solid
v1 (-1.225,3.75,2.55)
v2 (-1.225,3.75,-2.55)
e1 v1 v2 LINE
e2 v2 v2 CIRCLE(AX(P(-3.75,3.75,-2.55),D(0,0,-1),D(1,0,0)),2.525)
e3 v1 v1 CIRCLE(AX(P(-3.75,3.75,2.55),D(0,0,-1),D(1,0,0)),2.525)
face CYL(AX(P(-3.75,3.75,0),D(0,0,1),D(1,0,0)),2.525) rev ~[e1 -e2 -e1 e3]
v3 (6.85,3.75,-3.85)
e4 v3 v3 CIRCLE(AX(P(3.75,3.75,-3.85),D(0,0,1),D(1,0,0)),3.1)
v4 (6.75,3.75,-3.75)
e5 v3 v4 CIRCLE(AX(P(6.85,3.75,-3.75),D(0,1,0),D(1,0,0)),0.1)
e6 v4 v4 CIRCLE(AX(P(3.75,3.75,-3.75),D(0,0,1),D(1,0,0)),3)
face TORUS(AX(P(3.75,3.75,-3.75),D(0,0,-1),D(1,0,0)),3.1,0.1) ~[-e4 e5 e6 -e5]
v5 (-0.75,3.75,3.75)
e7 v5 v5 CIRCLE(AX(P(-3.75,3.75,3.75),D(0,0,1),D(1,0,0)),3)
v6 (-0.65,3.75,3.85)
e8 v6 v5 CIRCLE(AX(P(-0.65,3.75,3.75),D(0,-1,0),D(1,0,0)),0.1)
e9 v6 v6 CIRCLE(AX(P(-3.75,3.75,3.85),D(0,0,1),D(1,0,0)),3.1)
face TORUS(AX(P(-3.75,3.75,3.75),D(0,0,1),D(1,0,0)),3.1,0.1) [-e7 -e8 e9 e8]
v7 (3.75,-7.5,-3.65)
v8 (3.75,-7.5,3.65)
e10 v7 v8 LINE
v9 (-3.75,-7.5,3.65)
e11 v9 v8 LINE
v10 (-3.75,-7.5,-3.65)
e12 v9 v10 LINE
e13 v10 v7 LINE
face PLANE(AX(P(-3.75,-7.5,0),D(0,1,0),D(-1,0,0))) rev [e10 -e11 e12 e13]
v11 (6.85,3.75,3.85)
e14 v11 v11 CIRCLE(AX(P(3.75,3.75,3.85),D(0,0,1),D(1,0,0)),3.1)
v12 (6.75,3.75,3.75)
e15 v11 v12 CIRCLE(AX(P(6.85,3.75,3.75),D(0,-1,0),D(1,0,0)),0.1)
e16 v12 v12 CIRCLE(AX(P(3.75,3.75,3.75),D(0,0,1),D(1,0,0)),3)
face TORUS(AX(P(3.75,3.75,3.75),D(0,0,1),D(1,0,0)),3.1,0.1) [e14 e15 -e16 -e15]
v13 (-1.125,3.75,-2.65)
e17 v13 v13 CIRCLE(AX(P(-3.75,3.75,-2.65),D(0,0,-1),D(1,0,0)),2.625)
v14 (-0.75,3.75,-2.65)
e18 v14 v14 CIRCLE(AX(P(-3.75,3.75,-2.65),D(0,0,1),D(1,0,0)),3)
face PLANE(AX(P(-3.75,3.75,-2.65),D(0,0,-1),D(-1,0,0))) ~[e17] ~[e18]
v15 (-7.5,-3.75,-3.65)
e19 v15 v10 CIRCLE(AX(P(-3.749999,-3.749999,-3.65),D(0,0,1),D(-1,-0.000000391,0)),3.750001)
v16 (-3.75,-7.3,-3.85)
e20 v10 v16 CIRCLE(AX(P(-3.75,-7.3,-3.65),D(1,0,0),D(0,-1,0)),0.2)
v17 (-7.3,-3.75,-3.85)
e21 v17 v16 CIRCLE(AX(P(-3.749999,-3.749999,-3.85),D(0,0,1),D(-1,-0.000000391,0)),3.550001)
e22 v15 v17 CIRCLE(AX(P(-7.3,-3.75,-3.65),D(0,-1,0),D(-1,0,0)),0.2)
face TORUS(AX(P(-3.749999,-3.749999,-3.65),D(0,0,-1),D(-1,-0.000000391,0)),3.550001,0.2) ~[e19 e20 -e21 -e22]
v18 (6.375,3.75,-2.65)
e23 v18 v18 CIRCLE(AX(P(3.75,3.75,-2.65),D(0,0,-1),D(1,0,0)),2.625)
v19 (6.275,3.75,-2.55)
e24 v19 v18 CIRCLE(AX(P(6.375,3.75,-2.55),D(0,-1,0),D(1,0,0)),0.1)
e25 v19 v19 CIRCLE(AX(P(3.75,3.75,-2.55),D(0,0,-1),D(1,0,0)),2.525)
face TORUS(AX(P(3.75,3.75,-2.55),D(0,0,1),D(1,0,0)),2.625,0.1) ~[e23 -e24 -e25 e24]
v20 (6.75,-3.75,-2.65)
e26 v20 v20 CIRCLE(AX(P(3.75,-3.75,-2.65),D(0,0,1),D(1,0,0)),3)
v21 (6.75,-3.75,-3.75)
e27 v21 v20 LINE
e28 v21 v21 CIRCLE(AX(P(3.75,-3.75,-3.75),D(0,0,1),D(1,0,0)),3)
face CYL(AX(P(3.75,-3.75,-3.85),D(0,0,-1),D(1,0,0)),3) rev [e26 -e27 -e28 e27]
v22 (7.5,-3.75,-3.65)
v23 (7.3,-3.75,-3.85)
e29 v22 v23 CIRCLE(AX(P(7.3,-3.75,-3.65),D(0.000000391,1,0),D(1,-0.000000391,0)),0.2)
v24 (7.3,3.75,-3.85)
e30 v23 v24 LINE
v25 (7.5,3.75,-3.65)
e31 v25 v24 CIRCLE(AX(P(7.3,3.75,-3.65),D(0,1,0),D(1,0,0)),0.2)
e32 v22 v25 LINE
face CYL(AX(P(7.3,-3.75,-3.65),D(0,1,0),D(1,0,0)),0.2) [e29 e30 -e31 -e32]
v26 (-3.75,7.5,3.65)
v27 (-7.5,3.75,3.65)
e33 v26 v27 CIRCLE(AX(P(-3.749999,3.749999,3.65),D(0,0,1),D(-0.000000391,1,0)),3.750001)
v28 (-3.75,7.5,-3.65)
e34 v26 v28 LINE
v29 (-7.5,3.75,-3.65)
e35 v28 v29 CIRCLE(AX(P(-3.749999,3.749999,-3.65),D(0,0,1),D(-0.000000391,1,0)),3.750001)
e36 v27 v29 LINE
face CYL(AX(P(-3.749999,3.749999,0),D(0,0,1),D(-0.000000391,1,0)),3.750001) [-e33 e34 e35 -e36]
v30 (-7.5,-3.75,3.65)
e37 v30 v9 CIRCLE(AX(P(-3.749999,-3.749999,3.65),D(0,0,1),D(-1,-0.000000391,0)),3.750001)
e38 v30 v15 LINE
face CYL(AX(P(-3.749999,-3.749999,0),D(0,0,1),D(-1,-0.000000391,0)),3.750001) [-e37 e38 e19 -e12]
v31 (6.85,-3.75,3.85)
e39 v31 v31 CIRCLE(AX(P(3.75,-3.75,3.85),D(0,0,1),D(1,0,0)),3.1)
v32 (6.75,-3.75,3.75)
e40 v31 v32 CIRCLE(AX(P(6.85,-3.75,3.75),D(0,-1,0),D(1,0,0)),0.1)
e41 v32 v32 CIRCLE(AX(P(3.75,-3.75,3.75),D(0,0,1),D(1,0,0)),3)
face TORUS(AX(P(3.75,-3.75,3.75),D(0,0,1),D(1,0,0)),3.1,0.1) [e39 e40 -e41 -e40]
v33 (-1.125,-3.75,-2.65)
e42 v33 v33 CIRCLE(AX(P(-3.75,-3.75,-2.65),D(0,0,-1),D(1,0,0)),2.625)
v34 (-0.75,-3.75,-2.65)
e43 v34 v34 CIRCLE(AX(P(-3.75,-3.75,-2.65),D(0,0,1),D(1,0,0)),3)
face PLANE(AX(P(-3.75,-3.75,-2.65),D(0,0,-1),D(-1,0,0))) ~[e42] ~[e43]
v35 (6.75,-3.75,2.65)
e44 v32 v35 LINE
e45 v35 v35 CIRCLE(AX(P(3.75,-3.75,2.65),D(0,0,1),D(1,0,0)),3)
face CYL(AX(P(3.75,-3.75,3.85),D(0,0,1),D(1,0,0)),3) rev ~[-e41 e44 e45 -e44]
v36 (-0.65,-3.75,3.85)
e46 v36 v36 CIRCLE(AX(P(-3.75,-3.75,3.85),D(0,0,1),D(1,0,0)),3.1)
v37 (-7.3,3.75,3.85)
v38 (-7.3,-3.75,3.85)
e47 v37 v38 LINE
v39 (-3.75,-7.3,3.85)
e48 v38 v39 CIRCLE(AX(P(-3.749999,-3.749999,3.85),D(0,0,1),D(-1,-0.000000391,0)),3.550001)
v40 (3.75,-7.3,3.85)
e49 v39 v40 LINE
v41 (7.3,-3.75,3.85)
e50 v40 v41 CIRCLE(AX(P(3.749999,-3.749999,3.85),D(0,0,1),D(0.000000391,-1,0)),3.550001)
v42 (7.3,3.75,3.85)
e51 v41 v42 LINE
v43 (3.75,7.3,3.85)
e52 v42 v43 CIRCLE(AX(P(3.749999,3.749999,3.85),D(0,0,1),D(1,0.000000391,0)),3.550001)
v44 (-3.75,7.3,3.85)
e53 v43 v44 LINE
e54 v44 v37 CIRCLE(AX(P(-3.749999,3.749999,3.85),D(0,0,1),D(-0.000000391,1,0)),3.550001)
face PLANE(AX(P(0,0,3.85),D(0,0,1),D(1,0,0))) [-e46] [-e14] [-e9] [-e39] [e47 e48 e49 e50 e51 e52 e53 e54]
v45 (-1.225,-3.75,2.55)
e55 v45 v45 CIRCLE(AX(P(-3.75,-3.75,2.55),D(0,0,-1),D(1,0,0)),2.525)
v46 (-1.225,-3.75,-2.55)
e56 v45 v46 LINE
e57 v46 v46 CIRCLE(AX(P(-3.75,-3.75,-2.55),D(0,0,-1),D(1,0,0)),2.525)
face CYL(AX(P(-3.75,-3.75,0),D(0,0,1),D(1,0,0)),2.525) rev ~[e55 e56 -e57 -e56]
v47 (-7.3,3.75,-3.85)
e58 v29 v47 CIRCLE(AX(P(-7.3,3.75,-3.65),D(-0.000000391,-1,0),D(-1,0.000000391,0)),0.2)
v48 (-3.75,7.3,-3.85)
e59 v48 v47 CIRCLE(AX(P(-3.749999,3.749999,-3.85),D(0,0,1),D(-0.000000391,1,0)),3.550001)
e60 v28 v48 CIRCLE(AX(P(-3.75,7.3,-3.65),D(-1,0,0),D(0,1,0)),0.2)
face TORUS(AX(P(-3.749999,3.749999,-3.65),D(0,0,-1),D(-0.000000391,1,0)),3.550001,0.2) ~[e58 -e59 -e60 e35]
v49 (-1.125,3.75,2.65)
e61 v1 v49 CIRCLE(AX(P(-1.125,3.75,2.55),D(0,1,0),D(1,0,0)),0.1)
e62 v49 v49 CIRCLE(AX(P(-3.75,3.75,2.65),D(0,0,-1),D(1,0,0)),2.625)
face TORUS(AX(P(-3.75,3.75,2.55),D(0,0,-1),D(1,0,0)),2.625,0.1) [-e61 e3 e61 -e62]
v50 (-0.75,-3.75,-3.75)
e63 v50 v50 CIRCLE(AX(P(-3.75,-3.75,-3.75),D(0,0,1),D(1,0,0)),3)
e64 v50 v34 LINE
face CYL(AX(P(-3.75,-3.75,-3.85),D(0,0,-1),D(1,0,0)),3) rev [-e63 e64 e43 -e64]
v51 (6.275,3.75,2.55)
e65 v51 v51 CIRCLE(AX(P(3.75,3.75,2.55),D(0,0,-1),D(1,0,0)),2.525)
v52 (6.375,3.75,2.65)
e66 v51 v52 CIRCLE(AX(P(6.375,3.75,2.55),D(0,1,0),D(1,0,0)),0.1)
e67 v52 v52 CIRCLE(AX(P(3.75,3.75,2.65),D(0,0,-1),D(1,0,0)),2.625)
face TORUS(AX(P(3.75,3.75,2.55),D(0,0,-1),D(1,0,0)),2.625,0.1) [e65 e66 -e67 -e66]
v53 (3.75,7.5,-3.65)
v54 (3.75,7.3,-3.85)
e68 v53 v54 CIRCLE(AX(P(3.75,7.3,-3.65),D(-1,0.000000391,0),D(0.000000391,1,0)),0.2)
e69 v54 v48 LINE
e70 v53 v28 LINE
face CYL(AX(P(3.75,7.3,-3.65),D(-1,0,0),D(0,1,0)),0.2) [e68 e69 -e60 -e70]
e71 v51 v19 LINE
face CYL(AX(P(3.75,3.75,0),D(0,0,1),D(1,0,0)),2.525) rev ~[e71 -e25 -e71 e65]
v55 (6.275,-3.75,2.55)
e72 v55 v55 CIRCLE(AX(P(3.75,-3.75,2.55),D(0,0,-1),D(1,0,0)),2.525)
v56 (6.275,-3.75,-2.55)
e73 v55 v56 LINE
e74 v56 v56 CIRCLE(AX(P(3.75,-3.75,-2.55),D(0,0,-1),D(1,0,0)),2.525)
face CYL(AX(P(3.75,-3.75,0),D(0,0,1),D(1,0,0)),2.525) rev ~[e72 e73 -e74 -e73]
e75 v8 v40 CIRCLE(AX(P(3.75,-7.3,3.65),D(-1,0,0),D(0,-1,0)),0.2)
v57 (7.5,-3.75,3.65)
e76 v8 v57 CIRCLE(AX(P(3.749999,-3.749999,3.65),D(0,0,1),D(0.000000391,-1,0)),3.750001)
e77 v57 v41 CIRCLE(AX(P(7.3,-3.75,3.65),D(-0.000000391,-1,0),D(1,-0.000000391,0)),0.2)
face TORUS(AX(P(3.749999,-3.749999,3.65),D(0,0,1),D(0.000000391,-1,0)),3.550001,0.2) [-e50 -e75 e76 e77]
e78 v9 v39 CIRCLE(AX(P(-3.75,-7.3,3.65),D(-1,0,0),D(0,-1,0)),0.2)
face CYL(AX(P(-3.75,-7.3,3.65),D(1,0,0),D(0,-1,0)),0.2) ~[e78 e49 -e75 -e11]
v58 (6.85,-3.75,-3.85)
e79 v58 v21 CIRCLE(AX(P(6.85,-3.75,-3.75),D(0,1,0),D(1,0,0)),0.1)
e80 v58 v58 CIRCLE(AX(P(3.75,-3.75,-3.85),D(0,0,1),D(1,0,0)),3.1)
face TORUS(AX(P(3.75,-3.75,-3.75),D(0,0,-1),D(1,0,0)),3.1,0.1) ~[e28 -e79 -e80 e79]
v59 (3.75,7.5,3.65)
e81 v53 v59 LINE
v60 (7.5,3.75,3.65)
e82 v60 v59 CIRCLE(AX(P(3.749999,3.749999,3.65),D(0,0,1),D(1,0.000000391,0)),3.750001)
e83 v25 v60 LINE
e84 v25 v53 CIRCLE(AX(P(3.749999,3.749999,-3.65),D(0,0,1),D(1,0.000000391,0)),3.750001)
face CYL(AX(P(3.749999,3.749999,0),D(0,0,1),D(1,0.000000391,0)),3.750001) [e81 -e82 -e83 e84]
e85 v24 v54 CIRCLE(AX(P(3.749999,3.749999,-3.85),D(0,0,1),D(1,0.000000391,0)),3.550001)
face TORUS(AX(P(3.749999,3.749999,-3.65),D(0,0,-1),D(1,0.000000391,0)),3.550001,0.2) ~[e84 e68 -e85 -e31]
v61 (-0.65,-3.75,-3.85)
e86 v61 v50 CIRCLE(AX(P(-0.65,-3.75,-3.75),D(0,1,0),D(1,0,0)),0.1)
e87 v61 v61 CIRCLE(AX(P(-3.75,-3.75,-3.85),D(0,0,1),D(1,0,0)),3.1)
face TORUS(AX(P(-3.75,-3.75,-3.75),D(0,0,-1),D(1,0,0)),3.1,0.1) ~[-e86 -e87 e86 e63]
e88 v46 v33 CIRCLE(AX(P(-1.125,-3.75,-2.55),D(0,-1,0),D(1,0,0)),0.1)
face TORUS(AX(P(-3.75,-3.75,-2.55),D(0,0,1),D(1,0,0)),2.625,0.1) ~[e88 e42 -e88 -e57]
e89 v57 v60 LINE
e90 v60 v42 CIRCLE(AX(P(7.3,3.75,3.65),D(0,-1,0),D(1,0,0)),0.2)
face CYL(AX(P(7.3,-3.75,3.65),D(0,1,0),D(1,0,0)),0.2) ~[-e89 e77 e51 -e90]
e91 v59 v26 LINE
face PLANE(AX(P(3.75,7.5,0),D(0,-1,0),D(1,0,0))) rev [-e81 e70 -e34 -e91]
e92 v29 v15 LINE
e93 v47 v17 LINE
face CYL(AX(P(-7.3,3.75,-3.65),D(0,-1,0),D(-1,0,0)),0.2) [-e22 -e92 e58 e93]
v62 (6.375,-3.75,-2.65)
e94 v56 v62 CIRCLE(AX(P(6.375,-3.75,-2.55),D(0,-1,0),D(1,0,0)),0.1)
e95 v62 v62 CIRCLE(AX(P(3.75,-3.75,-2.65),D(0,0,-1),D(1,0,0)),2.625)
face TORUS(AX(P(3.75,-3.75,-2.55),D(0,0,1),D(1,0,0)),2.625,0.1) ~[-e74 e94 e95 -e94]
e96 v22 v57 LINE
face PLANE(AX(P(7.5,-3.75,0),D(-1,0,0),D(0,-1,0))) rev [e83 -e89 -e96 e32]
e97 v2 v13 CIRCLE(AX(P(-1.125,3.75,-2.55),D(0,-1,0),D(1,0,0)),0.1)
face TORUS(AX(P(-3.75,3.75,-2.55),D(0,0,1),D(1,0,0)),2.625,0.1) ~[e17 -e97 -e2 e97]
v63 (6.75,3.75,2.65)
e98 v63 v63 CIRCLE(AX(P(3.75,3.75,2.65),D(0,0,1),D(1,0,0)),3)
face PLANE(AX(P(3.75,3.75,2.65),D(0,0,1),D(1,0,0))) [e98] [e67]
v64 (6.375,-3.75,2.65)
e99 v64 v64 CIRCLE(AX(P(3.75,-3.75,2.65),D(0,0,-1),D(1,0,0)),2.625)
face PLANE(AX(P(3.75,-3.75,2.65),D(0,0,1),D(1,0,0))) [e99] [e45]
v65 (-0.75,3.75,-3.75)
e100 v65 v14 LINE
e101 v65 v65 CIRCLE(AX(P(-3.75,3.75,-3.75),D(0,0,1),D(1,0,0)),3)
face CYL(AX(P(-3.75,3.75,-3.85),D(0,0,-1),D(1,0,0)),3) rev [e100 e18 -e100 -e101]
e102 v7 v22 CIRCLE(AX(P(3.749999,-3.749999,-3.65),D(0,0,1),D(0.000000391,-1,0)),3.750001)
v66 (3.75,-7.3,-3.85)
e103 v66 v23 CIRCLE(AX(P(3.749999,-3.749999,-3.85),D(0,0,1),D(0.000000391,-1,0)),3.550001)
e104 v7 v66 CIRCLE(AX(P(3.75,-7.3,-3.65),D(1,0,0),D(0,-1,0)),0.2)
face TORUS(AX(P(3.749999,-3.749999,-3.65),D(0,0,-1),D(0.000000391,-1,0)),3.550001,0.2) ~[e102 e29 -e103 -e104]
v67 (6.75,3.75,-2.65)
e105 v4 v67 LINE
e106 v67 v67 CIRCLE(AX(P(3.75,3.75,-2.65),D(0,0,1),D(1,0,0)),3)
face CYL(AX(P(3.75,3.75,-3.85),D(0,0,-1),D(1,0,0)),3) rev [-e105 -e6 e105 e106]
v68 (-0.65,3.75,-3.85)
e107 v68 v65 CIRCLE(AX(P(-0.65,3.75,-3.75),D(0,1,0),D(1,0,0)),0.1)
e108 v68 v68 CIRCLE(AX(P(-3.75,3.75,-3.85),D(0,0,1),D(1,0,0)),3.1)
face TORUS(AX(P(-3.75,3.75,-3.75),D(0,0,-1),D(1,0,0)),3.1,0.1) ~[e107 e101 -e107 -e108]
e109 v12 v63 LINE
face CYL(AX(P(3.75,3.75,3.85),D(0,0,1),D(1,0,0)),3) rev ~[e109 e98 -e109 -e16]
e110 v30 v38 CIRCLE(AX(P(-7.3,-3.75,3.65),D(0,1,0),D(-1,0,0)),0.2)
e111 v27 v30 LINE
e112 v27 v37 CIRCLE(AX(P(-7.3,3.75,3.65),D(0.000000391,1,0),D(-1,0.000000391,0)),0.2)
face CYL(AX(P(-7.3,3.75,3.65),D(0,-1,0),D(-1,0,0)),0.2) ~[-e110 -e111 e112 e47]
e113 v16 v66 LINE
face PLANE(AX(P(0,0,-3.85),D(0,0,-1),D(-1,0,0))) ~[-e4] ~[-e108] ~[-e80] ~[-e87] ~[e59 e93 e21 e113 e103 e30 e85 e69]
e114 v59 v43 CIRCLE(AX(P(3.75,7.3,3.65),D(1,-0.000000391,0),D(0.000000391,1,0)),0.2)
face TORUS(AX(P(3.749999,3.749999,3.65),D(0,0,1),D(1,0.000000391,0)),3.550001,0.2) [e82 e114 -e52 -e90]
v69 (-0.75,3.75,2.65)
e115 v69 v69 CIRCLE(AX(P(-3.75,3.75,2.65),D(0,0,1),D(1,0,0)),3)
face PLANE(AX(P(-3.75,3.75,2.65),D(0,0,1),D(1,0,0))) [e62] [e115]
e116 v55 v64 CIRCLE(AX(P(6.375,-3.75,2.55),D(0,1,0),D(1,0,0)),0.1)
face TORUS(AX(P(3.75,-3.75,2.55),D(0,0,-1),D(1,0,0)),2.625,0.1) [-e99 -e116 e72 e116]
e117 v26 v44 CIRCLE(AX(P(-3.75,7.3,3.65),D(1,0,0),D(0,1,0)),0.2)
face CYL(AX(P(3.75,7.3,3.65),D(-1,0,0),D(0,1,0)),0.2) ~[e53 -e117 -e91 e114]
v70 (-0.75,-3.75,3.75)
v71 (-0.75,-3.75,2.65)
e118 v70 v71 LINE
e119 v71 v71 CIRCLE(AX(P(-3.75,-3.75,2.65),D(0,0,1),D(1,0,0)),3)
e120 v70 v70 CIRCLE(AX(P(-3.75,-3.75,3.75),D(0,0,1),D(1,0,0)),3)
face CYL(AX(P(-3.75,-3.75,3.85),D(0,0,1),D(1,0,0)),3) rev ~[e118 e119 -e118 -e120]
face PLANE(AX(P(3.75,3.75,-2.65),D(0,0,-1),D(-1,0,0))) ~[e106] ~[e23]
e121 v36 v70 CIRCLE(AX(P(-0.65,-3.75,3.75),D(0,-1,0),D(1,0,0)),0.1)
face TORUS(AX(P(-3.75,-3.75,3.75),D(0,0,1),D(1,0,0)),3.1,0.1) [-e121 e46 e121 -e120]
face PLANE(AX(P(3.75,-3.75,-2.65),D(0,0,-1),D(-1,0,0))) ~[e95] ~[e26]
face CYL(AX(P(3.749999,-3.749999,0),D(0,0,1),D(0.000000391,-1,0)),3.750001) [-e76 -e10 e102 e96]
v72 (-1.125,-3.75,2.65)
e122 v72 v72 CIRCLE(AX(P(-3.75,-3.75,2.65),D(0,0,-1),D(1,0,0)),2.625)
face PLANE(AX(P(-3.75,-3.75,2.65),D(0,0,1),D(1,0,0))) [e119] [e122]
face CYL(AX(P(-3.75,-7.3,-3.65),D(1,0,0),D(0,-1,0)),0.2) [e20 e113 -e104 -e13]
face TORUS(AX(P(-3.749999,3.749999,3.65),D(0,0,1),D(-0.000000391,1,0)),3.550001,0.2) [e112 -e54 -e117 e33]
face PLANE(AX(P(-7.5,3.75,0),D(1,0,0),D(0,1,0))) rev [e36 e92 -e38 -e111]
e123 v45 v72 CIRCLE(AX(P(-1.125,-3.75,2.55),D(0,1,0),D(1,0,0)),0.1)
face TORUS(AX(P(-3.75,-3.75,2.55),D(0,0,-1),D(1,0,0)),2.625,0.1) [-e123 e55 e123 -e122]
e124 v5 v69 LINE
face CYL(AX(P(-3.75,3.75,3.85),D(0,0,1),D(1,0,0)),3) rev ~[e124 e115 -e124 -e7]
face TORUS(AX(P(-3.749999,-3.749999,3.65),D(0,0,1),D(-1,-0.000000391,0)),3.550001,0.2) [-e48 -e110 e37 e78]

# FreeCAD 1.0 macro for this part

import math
import FreeCAD as App
import Part
import Sketcher
from FreeCAD import Vector
Q = App.Units.Quantity


def edges_at(feature, points):
    """Names of the edges that pass closest to the given points."""
    edges = feature.Shape.Edges
    near = lambda p: min(range(len(edges)), key=lambda i: edges[i].distToShape(Part.Vertex(*p))[0])
    return sorted({f"Edge{near(p) + 1}" for p in points})

doc = App.newDocument("Part")
body = doc.addObject("PartDesign::Body", "Body")

# Sketch on XY plane
sketch1 = doc.addObject("Sketcher::SketchObject", "Sketch")
body.addObject(sketch1)
sketch1.AttachmentSupport = (doc.XY_Plane, [""])
sketch1.MapMode = "FlatFace"
sketch1.addGeometry(Part.LineSegment(Vector(-3.75, -7.5, 0), Vector(3.75, -7.5, 0)), False)
sketch1.addGeometry(Part.ArcOfCircle(Part.Circle(Vector(3.749999, -3.749999, 0), Vector(0, 0, 1), 3.750001), math.radians(-89.999978), math.radians(-0.000022)), False)
sketch1.addGeometry(Part.LineSegment(Vector(7.5, -3.75, 0), Vector(7.5, 3.75, 0)), False)
sketch1.addGeometry(Part.ArcOfCircle(Part.Circle(Vector(3.749999, 3.749999, 0), Vector(0, 0, 1), 3.750001), math.radians(0.000022), math.radians(89.999978)), False)
sketch1.addGeometry(Part.LineSegment(Vector(3.75, 7.5, 0), Vector(-3.75, 7.5, 0)), False)
sketch1.addGeometry(Part.ArcOfCircle(Part.Circle(Vector(-3.749999, 3.749999, 0), Vector(0, 0, 1), 3.750001), math.radians(90.000022), math.radians(179.999978)), False)
sketch1.addGeometry(Part.LineSegment(Vector(-7.5, 3.75, 0), Vector(-7.5, -3.75, 0)), False)
sketch1.addGeometry(Part.ArcOfCircle(Part.Circle(Vector(-3.749999, -3.749999, 0), Vector(0, 0, 1), 3.750001), math.radians(-179.999978), math.radians(-90.000022)), False)
sketch1.addGeometry(Part.Circle(Vector(-3.75, -3.75, 0), Vector(0, 0, 1), 2.525), False)
sketch1.addGeometry(Part.Circle(Vector(3.75, -3.75, 0), Vector(0, 0, 1), 2.525), False)
sketch1.addGeometry(Part.Circle(Vector(-3.75, 3.75, 0), Vector(0, 0, 1), 2.525), False)
sketch1.addGeometry(Part.Circle(Vector(3.75, 3.75, 0), Vector(0, 0, 1), 2.525), False)
sketch1.addConstraint(Sketcher.Constraint("Tangent", 0, 2, 1, 1))
sketch1.addConstraint(Sketcher.Constraint("Tangent", 1, 2, 2, 1))
sketch1.addConstraint(Sketcher.Constraint("Tangent", 2, 2, 3, 1))
sketch1.addConstraint(Sketcher.Constraint("Tangent", 3, 2, 4, 1))
sketch1.addConstraint(Sketcher.Constraint("Tangent", 4, 2, 5, 1))
sketch1.addConstraint(Sketcher.Constraint("Tangent", 5, 2, 6, 1))
sketch1.addConstraint(Sketcher.Constraint("Tangent", 6, 2, 7, 1))
sketch1.addConstraint(Sketcher.Constraint("Tangent", 7, 2, 0, 1))
sketch1.addConstraint(Sketcher.Constraint("Horizontal", 0))
sketch1.addConstraint(Sketcher.Constraint("Vertical", 2))
sketch1.addConstraint(Sketcher.Constraint("Horizontal", 4))
sketch1.addConstraint(Sketcher.Constraint("Vertical", 6))
sketch1.addConstraint(Sketcher.Constraint("Coincident", 8, 3, 7, 3))
sketch1.addConstraint(Sketcher.Constraint("Coincident", 9, 3, 1, 3))
sketch1.addConstraint(Sketcher.Constraint("Coincident", 10, 3, 5, 3))
sketch1.addConstraint(Sketcher.Constraint("Coincident", 11, 3, 3, 3))
sketch1.addConstraint(Sketcher.Constraint("Equal", 1, 3))
sketch1.addConstraint(Sketcher.Constraint("Equal", 3, 5))
sketch1.addConstraint(Sketcher.Constraint("Equal", 5, 7))
sketch1.addConstraint(Sketcher.Constraint("Equal", 8, 9))
sketch1.addConstraint(Sketcher.Constraint("Equal", 9, 10))
sketch1.addConstraint(Sketcher.Constraint("Equal", 10, 11))
sketch1.addConstraint(Sketcher.Constraint("Symmetric", 1, 3, 5, 3, -1, 1))
sketch1.addConstraint(Sketcher.Constraint("Equal", 4, 2))
sketch1.addConstraint(Sketcher.Constraint("Diameter", 8, Q("5.05 mm")))
sketch1.addConstraint(Sketcher.Constraint("Radius", 1, Q("3.750001 mm")))
sketch1.addConstraint(Sketcher.Constraint("DistanceX", 0, 1, 0, 2, Q("7.5 mm")))
pad1 = doc.addObject("PartDesign::Pad", "Pad")
body.addObject(pad1)
pad1.Profile = sketch1
pad1.Length = 3.85
doc.recompute()

fillet = doc.addObject("PartDesign::Fillet", "Fillet")
body.addObject(fillet)
fillet.Base = (pad1, edges_at(pad1, [
    (0, -7.5, 3.85),
    (6.402, -6.402, 3.85),
    (7.5, 0, 3.85),
    (6.402, 6.402, 3.85),
    (0, 7.5, 3.85),
    (-6.402, 6.402, 3.85),
    (-7.5, 0, 3.85),
    (-6.402, -6.402, 3.85),
    (-6.275, -3.75, 3.85),
    (1.225, -3.75, 3.85),
    (-6.275, 3.75, 3.85),
    (1.225, 3.75, 3.85),
]))
fillet.Radius = 0.2

# Sketch on XY plane
sketch2 = doc.addObject("Sketcher::SketchObject", "Sketch001")
body.addObject(sketch2)
sketch2.AttachmentSupport = (doc.XY_Plane, [""])
sketch2.MapMode = "FlatFace"
sketch2.AttachmentOffset = App.Placement(Vector(0, 0, 3.85), App.Rotation())
sketch2.addGeometry(Part.Circle(Vector(-3.75, 3.75, 0), Vector(0, 0, 1), 3), False)
sketch2.addGeometry(Part.Circle(Vector(3.75, 3.75, 0), Vector(0, 0, 1), 3), False)
sketch2.addGeometry(Part.Circle(Vector(3.75, -3.75, 0), Vector(0, 0, 1), 3), False)
sketch2.addGeometry(Part.Circle(Vector(-3.75, -3.75, 0), Vector(0, 0, 1), 3), False)
sketch2.addConstraint(Sketcher.Constraint("Equal", 0, 1))
sketch2.addConstraint(Sketcher.Constraint("Equal", 1, 2))
sketch2.addConstraint(Sketcher.Constraint("Equal", 2, 3))
sketch2.addConstraint(Sketcher.Constraint("Symmetric", 0, 3, 2, 3, -1, 1))
sketch2.addConstraint(Sketcher.Constraint("Symmetric", 1, 3, 3, 3, -1, 1))
sketch2.addConstraint(Sketcher.Constraint("Symmetric", 0, 3, 1, 3, -2))
sketch2.addConstraint(Sketcher.Constraint("Diameter", 0, Q("6 mm")))
sketch2.addConstraint(Sketcher.Constraint("DistanceX", 0, 3, 1, 3, Q("7.5 mm")))
sketch2.addConstraint(Sketcher.Constraint("DistanceY", 2, 3, 1, 3, Q("7.5 mm")))
pocket1 = doc.addObject("PartDesign::Pocket", "Pocket")
body.addObject(pocket1)
pocket1.Profile = sketch2
pocket1.Length = 1.2
doc.recompute()

fillet2 = doc.addObject("PartDesign::Fillet", "Fillet001")
body.addObject(fillet2)
fillet2.Base = (pocket1, edges_at(pocket1, [
    (-6.75, -3.75, 3.85),
    (-6.275, -3.75, 2.65),
    (-6.75, 3.75, 3.85),
    (-6.275, 3.75, 2.65),
    (0.75, 3.75, 3.85),
    (1.225, 3.75, 2.65),
    (1.225, -3.75, 2.65),
    (0.75, -3.75, 3.85),
]))
fillet2.Radius = 0.1
body2 = doc.addObject("PartDesign::Body", "Body001")
doc.recompute()

body2.BaseFeature = body
doc.recompute()

mirroring = doc.addObject("Part::Mirroring", "Mirroring")
mirroring.Source = body
mirroring.Base = Vector(0, 0, 0)
mirroring.Normal = Vector(0, 0, 1)
body3 = doc.addObject("PartDesign::Body", "Body002")
body3.BaseFeature = mirroring
boolean = doc.addObject("PartDesign::Boolean", "Boolean")
body2.addObject(boolean)
boolean.Type = "Fuse"
boolean.addObjects([body3])
doc.recompute()
mirroring.Visibility = False

doc.recompute()
